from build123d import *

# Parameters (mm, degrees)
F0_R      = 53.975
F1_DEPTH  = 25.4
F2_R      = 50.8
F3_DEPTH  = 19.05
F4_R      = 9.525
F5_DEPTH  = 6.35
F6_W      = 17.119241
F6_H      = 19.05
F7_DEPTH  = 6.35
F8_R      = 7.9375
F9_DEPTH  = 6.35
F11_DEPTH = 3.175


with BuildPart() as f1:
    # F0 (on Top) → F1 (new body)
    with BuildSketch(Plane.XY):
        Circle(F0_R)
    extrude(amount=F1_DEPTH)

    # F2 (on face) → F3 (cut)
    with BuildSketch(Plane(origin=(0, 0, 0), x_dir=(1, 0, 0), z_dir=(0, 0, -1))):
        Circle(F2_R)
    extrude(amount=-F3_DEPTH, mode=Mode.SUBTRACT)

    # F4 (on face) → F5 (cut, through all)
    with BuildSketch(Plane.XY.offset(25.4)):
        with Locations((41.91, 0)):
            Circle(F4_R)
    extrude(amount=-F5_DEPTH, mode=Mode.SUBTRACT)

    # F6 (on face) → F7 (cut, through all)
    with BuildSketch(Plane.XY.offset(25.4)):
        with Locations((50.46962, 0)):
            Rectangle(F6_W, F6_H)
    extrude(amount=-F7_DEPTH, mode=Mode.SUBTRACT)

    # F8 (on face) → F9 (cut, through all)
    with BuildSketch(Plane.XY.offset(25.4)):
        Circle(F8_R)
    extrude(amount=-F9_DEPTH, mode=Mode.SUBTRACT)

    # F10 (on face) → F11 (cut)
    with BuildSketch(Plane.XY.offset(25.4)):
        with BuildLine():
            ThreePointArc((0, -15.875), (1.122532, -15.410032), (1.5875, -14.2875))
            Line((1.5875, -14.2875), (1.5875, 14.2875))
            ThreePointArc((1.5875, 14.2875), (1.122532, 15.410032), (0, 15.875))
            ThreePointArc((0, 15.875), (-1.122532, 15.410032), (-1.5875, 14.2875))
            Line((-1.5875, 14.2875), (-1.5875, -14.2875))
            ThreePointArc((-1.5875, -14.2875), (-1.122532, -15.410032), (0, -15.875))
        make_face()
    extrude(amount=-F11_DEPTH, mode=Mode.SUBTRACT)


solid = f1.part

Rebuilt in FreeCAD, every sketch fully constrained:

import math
import FreeCAD as App
import Part
import Sketcher
from FreeCAD import Vector
Q = App.Units.Quantity


def add_polygon(sketch, points):
    """Adds a closed chain of lines whose ends are joined by coincident constraints."""
    first, n = sketch.GeometryCount, len(points)
    for a, b in zip(points, points[1:] + points[:1]):
        sketch.addGeometry(Part.LineSegment(App.Vector(*a, 0), App.Vector(*b, 0)), False)
    for i in range(n):
        sketch.addConstraint(Sketcher.Constraint("Coincident", first + i, 2, first + (i + 1) % n, 1))

doc = App.newDocument("Part")
body = doc.addObject("PartDesign::Body", "Body")

# Sketch on XY plane
sketch1 = body.newObject("Sketcher::SketchObject", "Sketch")
sketch1.AttachmentSupport = (doc.getObject("XY_Plane"), [""])
sketch1.MapMode = "FlatFace"
sketch1.addGeometry(Part.Circle(Vector(0, 0, 0), Vector(0, 0, 1), 53.975), False)
sketch1.addConstraint(Sketcher.Constraint("Coincident", 0, 3, -1, 1))
sketch1.addConstraint(Sketcher.Constraint("Diameter", 0, Q("4.25 in")))
pad1 = body.newObject("PartDesign::Pad", "Pad")
pad1.Profile = sketch1
pad1.Length = Q("1 in")

# Sketch on XY plane
sketch2 = body.newObject("Sketcher::SketchObject", "Sketch001")
sketch2.AttachmentSupport = (doc.getObject("XY_Plane"), [""])
sketch2.MapMode = "FlatFace"
sketch2.addGeometry(Part.Circle(Vector(0, 0, 0), Vector(0, 0, 1), 50.8), False)
sketch2.addConstraint(Sketcher.Constraint("Coincident", 0, 3, -1, 1))
sketch2.addConstraint(Sketcher.Constraint("Diameter", 0, Q("4 in")))
pocket1 = body.newObject("PartDesign::Pocket", "Pocket")
pocket1.Profile = sketch2
pocket1.Length = Q("0.75 in")
pocket1.Reversed = True

# Sketch on XY plane
sketch3 = body.newObject("Sketcher::SketchObject", "Sketch002")
sketch3.AttachmentSupport = (doc.getObject("XY_Plane"), [""])
sketch3.MapMode = "FlatFace"
sketch3.AttachmentOffset = App.Placement(Vector(0, 0, 1 * 25.4), App.Rotation())
sketch3.addGeometry(Part.Circle(Vector(41.91, 0, 0), Vector(0, 0, 1), 9.525), False)
sketch3.addConstraint(Sketcher.Constraint("PointOnObject", 0, 3, -1))
sketch3.addConstraint(Sketcher.Constraint("Diameter", 0, Q("0.75 in")))
sketch3.addConstraint(Sketcher.Constraint("DistanceX", -1, 1, 0, 3, Q("1.65 in")))
pocket2 = body.newObject("PartDesign::Pocket", "Pocket001")
pocket2.Profile = sketch3
pocket2.Length = Q("0.25 in")

# Sketch on XY plane
sketch4 = body.newObject("Sketcher::SketchObject", "Sketch003")
sketch4.AttachmentSupport = (doc.getObject("XY_Plane"), [""])
sketch4.MapMode = "FlatFace"
sketch4.AttachmentOffset = App.Placement(Vector(0, 0, 1 * 25.4), App.Rotation())
add_polygon(sketch4, [(41.909999, 9.525), (41.909999, -9.525), (59.029241, -9.525), (59.029241, 9.525)])  # lines 0-3
sketch4.addConstraint(Sketcher.Constraint("Vertical", 0))
sketch4.addConstraint(Sketcher.Constraint("Horizontal", 1))
sketch4.addConstraint(Sketcher.Constraint("Vertical", 2))
sketch4.addConstraint(Sketcher.Constraint("Horizontal", 3))
sketch4.addConstraint(Sketcher.Constraint("DistanceY", 0, 2, 0, 1, Q("0.75 in")))
sketch4.addConstraint(Sketcher.Constraint("DistanceX", -1, 1, 0, 2, Q("1.65 in")))
sketch4.addConstraint(Sketcher.Constraint("DistanceY", 0, 2, -1, 1, Q("0.375 in")))
sketch4.addConstraint(Sketcher.Constraint("DistanceX", 1, 1, 1, 2, Q("17.119241 mm")))
pocket3 = body.newObject("PartDesign::Pocket", "Pocket002")
pocket3.Profile = sketch4
pocket3.Length = Q("0.25 in")

# Sketch on XY plane
sketch5 = body.newObject("Sketcher::SketchObject", "Sketch004")
sketch5.AttachmentSupport = (doc.getObject("XY_Plane"), [""])
sketch5.MapMode = "FlatFace"
sketch5.AttachmentOffset = App.Placement(Vector(0, 0, 1 * 25.4), App.Rotation())
sketch5.addGeometry(Part.Circle(Vector(0, 0, 0), Vector(0, 0, 1), 7.9375), False)
sketch5.addConstraint(Sketcher.Constraint("Coincident", 0, 3, -1, 1))
sketch5.addConstraint(Sketcher.Constraint("Diameter", 0, Q("0.625 in")))
pocket4 = body.newObject("PartDesign::Pocket", "Pocket003")
pocket4.Profile = sketch5
pocket4.Type = "ThroughAll"

# Sketch on XY plane
sketch6 = body.newObject("Sketcher::SketchObject", "Sketch005")
sketch6.AttachmentSupport = (doc.getObject("XY_Plane"), [""])
sketch6.MapMode = "FlatFace"
sketch6.AttachmentOffset = App.Placement(Vector(0, 0, 1 * 25.4), App.Rotation())
sketch6.addGeometry(Part.ArcOfCircle(Part.Circle(Vector(0, -14.2875, 0), Vector(0, 0, 1), 1.5875), math.radians(-89.999998), math.radians(-0.000002)), False)
sketch6.addGeometry(Part.LineSegment(Vector(1.5875, -14.2875, 0), Vector(1.5875, 14.2875, 0)), False)
sketch6.addGeometry(Part.ArcOfCircle(Part.Circle(Vector(0, 14.2875, 0), Vector(0, 0, 1), 1.5875), math.radians(0.000002), math.radians(89.999998)), False)
sketch6.addGeometry(Part.ArcOfCircle(Part.Circle(Vector(0, 14.2875, 0), Vector(0, 0, 1), 1.5875), math.radians(90.000002), math.radians(179.999998)), False)
sketch6.addGeometry(Part.LineSegment(Vector(-1.5875, 14.2875, 0), Vector(-1.5875, -14.2875, 0)), False)
sketch6.addGeometry(Part.ArcOfCircle(Part.Circle(Vector(0, -14.2875, 0), Vector(0, 0, 1), 1.5875), math.radians(-179.999998), math.radians(-90.000002)), False)
sketch6.addConstraint(Sketcher.Constraint("Tangent", 0, 2, 1, 1))
sketch6.addConstraint(Sketcher.Constraint("Tangent", 1, 2, 2, 1))
sketch6.addConstraint(Sketcher.Constraint("Tangent", 2, 2, 3, 1))
sketch6.addConstraint(Sketcher.Constraint("Tangent", 3, 2, 4, 1))
sketch6.addConstraint(Sketcher.Constraint("Tangent", 4, 2, 5, 1))
sketch6.addConstraint(Sketcher.Constraint("Tangent", 5, 2, 0, 1))
sketch6.addConstraint(Sketcher.Constraint("Vertical", 1))
sketch6.addConstraint(Sketcher.Constraint("Vertical", 4))
sketch6.addConstraint(Sketcher.Constraint("Equal", 0, 2))
sketch6.addConstraint(Sketcher.Constraint("Equal", 2, 3))
sketch6.addConstraint(Sketcher.Constraint("Symmetric", 0, 3, 2, 3, -1, 1))
sketch6.addConstraint(Sketcher.Constraint("PointOnObject", 2, 2, -2))
sketch6.addConstraint(Sketcher.Constraint("PointOnObject", 5, 2, -2))
sketch6.addConstraint(Sketcher.Constraint("Radius", 0, Q("0.0625 in")))
sketch6.addConstraint(Sketcher.Constraint("DistanceY", 1, 1, 1, 2, Q("1.125 in")))
pocket5 = body.newObject("PartDesign::Pocket", "Pocket004")
pocket5.Profile = sketch6
pocket5.Length = Q("0.125 in")

doc.recompute()
